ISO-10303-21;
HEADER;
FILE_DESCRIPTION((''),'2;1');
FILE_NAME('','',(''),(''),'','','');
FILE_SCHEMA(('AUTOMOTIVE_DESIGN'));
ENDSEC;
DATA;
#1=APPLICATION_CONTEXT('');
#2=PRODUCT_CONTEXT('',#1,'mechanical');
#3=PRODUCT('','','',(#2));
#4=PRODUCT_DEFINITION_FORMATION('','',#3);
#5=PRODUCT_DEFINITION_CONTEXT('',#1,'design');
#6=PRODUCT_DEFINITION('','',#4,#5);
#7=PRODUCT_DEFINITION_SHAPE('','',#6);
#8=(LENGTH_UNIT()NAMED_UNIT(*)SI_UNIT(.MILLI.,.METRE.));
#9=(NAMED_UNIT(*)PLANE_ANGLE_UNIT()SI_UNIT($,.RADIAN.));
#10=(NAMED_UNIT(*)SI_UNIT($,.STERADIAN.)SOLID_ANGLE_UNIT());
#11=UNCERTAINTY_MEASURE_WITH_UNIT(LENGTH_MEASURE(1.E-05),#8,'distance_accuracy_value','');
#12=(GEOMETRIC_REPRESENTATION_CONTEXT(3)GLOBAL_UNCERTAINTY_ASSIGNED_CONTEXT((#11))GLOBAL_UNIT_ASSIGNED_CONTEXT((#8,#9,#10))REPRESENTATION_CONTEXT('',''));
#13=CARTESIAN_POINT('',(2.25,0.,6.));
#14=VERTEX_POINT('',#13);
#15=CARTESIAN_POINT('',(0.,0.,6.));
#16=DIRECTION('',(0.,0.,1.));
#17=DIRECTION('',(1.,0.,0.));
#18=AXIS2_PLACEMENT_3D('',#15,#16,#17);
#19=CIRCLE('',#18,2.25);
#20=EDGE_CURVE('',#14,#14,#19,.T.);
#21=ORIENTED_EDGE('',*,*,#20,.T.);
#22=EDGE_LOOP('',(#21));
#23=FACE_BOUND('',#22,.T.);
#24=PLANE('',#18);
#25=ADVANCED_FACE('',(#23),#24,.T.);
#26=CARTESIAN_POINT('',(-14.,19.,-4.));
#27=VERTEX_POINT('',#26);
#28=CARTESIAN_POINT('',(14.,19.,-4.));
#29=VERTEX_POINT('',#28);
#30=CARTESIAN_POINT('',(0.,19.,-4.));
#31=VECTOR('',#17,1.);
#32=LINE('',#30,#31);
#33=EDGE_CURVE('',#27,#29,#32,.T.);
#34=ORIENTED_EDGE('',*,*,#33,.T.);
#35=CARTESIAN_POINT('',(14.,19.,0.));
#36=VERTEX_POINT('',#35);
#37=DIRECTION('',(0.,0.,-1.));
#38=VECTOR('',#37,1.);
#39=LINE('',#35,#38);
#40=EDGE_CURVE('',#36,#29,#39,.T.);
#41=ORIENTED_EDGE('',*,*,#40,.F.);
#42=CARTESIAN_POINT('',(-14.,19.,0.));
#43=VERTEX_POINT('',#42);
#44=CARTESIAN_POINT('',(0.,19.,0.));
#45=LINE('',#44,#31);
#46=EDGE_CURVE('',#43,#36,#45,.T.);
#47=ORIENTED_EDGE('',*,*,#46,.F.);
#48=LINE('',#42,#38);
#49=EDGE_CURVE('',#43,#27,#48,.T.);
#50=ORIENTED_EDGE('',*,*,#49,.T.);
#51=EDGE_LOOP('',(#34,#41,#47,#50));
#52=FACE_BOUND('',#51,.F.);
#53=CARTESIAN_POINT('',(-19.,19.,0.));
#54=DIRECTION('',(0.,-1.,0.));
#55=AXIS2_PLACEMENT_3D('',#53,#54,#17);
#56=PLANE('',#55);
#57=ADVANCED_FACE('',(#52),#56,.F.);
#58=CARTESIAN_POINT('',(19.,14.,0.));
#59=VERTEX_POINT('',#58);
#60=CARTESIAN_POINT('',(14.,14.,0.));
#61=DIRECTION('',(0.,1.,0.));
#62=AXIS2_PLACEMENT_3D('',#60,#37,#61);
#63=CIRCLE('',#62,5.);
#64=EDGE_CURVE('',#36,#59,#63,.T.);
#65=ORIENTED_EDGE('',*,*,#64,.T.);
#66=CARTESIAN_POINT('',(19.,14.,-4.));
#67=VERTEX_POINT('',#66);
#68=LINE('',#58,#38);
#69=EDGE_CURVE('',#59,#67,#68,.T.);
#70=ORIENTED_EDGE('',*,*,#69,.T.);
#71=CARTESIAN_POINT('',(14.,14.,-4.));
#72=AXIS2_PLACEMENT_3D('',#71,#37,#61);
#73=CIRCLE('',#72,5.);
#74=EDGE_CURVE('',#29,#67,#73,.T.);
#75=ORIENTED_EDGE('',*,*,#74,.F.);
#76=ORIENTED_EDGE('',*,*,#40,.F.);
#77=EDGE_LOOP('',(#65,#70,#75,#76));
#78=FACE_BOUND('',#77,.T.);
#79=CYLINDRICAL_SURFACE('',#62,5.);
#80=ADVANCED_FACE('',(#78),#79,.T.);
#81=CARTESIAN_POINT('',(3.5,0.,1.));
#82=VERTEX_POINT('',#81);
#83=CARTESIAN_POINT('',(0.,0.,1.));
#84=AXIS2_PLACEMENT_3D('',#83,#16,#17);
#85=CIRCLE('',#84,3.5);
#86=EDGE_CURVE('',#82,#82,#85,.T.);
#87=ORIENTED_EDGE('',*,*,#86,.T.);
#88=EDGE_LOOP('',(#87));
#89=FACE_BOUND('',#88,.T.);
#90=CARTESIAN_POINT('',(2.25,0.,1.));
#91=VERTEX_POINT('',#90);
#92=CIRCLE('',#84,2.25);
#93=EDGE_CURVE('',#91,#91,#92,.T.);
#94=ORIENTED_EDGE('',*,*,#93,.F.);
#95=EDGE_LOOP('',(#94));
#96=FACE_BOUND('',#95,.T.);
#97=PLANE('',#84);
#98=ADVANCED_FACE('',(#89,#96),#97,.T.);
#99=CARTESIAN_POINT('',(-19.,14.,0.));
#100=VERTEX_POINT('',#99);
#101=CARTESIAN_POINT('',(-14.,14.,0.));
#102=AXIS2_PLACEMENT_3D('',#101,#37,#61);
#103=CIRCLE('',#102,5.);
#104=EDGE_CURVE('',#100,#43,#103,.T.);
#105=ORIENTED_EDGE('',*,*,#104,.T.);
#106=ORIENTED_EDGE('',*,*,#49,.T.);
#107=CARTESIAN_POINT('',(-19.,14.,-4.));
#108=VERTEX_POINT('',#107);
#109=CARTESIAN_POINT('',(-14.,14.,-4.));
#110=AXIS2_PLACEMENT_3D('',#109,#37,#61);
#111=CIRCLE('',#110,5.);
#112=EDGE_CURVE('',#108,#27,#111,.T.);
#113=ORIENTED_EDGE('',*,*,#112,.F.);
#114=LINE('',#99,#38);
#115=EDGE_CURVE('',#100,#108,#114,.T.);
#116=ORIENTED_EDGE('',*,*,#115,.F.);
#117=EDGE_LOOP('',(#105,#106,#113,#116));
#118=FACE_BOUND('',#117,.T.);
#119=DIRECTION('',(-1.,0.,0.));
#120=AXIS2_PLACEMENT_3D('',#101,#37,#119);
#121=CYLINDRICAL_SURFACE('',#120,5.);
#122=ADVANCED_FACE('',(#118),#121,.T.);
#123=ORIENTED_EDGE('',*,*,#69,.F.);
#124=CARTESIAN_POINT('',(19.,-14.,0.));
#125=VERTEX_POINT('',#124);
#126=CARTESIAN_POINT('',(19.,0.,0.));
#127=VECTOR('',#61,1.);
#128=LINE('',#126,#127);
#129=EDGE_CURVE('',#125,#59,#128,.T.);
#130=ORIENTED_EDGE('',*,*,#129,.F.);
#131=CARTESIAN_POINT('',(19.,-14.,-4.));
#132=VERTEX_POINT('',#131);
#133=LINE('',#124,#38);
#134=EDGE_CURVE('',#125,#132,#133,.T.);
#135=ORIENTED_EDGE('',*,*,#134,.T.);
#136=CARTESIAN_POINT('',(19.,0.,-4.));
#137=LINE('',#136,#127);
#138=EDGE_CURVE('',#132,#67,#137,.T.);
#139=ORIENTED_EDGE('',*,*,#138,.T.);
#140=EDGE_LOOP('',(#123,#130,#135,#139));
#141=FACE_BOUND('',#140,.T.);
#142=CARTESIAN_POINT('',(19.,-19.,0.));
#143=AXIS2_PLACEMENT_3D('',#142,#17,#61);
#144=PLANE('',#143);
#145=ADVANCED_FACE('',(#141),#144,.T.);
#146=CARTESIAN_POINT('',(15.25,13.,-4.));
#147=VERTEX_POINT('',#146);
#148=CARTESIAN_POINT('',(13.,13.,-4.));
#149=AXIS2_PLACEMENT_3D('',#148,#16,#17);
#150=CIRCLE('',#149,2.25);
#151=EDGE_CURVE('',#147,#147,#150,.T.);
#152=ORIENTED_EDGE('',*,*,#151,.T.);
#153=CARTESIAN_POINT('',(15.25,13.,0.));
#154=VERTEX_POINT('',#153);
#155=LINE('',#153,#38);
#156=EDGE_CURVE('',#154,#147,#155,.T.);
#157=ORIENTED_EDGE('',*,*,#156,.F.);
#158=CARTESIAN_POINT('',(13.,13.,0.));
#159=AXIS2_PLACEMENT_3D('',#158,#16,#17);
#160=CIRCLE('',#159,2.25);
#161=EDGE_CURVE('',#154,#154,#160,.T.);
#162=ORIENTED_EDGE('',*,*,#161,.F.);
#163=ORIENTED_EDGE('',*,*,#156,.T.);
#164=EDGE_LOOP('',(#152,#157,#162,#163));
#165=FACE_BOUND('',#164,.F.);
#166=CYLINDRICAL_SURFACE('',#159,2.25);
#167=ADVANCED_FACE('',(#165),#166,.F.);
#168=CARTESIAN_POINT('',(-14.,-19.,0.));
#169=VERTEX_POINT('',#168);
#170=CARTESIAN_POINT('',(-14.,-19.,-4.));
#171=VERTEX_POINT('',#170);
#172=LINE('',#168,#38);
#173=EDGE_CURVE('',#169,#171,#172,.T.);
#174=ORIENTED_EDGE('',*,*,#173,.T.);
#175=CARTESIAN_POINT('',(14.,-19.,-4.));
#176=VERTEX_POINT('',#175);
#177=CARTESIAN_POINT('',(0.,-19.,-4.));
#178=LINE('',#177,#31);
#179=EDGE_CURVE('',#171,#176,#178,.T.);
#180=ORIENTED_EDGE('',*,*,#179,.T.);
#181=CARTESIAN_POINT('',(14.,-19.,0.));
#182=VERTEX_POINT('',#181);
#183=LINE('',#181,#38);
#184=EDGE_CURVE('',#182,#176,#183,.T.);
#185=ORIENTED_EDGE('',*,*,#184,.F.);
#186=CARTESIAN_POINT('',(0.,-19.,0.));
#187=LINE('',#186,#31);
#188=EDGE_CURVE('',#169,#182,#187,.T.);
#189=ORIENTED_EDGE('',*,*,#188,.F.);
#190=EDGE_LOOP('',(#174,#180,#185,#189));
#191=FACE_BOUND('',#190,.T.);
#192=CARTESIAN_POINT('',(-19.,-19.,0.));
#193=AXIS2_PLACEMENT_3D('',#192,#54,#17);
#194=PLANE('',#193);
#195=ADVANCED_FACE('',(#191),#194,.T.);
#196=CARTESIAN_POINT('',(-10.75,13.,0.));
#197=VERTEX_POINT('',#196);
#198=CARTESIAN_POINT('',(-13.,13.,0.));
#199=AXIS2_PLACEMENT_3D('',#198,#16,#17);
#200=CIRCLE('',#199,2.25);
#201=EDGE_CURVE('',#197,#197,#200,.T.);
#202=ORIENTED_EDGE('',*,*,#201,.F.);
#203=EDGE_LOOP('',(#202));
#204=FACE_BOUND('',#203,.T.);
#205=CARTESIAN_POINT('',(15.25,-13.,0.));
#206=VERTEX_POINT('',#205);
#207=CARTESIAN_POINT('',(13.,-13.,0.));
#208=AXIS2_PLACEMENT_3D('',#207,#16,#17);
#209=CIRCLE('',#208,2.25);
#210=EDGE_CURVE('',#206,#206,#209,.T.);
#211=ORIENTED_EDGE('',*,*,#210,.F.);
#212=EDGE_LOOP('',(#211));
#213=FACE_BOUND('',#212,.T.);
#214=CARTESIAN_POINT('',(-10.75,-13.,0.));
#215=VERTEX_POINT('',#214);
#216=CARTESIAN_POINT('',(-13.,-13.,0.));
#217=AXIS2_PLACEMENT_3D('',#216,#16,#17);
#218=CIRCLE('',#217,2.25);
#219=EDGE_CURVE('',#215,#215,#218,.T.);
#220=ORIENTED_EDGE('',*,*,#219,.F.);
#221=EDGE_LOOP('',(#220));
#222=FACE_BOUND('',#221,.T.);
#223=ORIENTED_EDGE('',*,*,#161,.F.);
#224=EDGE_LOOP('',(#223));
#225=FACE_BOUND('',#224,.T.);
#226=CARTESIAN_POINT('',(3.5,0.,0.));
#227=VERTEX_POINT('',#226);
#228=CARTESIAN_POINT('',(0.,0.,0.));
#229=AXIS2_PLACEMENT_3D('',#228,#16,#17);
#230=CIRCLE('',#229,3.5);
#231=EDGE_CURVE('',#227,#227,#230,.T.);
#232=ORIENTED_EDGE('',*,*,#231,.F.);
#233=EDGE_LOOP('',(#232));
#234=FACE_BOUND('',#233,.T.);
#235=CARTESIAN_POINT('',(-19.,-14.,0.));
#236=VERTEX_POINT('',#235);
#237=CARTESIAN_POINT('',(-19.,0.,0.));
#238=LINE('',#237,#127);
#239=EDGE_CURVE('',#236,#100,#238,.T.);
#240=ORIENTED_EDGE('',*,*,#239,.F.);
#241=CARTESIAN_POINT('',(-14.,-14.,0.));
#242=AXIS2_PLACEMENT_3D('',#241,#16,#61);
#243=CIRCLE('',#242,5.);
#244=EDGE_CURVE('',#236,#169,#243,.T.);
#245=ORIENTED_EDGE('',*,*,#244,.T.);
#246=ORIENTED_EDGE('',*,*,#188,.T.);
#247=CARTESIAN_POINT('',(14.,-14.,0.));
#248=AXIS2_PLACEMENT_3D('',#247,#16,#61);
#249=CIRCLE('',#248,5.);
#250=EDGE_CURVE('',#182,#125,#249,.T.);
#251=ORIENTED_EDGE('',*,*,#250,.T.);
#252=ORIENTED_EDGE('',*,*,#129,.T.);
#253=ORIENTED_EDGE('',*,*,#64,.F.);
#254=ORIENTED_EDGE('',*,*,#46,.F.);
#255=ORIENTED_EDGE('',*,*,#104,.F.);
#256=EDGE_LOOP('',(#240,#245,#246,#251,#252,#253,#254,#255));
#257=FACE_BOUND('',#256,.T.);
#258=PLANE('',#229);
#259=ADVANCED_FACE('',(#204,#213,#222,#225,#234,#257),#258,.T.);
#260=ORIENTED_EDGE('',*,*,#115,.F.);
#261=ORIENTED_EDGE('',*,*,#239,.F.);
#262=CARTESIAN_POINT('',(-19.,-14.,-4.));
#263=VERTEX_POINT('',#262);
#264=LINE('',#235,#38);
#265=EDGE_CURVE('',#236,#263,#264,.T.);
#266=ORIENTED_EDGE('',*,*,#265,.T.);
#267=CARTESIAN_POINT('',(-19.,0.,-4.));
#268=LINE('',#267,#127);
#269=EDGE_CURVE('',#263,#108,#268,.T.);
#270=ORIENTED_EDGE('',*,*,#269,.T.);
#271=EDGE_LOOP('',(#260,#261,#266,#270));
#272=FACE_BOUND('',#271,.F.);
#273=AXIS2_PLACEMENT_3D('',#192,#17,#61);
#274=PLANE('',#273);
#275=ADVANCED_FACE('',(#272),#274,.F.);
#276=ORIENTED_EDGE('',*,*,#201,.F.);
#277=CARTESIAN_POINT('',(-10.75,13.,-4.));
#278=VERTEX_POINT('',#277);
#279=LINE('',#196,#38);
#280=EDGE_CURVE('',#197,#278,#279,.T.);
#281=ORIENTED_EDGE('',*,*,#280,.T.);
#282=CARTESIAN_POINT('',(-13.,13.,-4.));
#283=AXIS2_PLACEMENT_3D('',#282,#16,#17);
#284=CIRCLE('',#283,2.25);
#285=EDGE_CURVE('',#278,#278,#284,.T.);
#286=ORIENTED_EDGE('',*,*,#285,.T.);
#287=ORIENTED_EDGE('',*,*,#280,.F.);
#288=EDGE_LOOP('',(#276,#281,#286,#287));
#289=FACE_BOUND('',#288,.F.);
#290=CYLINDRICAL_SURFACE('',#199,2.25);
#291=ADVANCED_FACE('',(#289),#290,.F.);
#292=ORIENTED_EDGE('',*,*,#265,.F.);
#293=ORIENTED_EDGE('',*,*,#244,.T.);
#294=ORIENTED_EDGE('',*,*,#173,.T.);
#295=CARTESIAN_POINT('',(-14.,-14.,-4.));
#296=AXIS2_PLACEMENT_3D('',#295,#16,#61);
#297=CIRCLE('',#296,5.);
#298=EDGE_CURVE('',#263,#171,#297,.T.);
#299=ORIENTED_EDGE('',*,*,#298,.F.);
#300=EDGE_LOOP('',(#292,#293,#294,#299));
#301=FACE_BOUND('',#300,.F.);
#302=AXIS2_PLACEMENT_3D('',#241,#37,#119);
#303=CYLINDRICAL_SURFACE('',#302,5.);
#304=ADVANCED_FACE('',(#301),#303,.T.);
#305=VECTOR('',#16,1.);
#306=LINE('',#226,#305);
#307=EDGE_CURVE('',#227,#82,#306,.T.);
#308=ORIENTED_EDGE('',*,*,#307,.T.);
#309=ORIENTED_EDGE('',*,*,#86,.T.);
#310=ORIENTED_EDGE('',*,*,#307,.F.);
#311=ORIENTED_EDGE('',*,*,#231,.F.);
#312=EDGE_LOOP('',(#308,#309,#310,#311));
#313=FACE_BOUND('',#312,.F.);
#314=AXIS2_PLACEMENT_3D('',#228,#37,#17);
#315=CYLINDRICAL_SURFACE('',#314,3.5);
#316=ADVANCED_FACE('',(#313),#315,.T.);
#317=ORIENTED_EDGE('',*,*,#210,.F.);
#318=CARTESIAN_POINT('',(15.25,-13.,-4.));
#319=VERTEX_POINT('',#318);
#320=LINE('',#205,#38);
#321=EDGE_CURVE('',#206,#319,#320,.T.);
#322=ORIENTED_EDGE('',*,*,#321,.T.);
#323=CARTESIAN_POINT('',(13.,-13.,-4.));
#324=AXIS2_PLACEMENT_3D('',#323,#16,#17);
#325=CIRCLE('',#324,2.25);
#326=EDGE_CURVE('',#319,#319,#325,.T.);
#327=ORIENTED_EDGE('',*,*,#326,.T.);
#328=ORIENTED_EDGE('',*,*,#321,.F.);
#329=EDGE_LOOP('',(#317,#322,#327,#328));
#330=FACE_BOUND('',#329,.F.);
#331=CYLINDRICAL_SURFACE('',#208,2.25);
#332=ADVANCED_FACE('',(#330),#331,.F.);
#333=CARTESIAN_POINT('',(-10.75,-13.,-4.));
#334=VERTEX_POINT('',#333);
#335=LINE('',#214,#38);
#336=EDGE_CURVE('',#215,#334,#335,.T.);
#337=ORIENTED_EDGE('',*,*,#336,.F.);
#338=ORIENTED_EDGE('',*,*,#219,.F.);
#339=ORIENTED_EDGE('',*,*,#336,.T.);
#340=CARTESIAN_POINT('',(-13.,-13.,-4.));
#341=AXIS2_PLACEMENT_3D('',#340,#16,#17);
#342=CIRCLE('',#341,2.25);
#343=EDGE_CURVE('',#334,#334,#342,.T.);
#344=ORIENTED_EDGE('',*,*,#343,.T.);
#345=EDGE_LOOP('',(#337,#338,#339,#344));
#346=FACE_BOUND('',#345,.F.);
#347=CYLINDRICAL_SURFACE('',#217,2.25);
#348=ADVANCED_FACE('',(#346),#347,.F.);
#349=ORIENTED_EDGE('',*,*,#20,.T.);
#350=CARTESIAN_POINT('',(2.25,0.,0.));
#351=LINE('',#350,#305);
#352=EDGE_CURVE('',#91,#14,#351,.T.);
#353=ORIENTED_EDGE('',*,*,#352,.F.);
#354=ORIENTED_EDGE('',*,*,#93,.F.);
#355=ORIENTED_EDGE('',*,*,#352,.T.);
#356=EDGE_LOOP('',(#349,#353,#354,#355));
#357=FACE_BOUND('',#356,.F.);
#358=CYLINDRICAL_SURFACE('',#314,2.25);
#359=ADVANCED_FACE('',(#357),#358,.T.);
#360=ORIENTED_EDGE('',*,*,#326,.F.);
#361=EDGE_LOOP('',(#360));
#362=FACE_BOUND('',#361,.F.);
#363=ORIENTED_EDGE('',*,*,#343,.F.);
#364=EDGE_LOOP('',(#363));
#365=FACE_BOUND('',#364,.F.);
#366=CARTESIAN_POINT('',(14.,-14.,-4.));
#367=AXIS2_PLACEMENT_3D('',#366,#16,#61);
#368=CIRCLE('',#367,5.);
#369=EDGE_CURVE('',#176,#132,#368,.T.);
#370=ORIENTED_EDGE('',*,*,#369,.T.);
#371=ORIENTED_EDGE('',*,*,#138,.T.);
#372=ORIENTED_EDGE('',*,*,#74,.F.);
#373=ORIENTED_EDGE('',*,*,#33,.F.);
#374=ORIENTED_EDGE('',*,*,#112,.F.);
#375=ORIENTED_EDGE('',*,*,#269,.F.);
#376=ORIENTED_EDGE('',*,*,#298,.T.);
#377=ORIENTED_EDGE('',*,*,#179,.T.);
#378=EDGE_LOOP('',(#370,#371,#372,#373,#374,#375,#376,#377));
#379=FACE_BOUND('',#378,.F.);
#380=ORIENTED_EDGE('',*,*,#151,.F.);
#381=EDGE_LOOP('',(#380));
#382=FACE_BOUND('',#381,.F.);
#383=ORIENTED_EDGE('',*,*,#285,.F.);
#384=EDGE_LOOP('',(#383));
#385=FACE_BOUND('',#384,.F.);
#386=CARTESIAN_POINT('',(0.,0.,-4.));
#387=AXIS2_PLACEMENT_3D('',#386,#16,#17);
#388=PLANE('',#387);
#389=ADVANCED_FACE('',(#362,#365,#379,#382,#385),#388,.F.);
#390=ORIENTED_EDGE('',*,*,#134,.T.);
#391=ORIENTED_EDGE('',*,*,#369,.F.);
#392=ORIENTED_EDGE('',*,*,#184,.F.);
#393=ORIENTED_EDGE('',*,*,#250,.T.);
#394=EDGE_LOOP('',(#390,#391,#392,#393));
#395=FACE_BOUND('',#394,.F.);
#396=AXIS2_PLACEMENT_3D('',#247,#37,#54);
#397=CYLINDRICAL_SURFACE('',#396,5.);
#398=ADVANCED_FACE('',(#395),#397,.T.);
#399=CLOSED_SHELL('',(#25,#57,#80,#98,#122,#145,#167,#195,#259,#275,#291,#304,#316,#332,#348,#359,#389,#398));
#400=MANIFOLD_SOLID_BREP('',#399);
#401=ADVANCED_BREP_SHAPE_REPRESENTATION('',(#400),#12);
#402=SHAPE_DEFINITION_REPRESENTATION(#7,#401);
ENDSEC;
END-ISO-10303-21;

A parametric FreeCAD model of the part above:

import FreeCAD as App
import Part
import Sketcher
from FreeCAD import Vector
Q = App.Units.Quantity


def edges_at(feature, points):
    """Names of the edges that pass closest to the given points."""
    edges = feature.Shape.Edges
    near = lambda p: min(range(len(edges)), key=lambda i: edges[i].distToShape(Part.Vertex(*p))[0])
    return sorted({f"Edge{near(p) + 1}" for p in points})


def add_polygon(sketch, points):
    """Adds a closed chain of lines whose ends are joined by coincident constraints."""
    first, n = sketch.GeometryCount, len(points)
    for a, b in zip(points, points[1:] + points[:1]):
        sketch.addGeometry(Part.LineSegment(App.Vector(*a, 0), App.Vector(*b, 0)), False)
    for i in range(n):
        sketch.addConstraint(Sketcher.Constraint("Coincident", first + i, 2, first + (i + 1) % n, 1))

doc = App.newDocument("Part")
body = doc.addObject("PartDesign::Body", "Body")

# Sketch on XY plane
sketch1 = body.newObject("Sketcher::SketchObject", "Sketch")
sketch1.AttachmentSupport = (doc.getObject("XY_Plane"), [""])
sketch1.MapMode = "FlatFace"
add_polygon(sketch1, [(-19, 19), (-19, -19), (19, -19), (19, 19)])  # lines 0-3
sketch1.addGeometry(Part.Circle(Vector(-13, -13, 0), Vector(0, 0, 1), 2.25), False)  # 4
sketch1.addGeometry(Part.Circle(Vector(13, -13, 0), Vector(0, 0, 1), 2.25), False)  # 5
sketch1.addGeometry(Part.Circle(Vector(-13, 13, 0), Vector(0, 0, 1), 2.25), False)  # 6
sketch1.addGeometry(Part.Circle(Vector(13, 13, 0), Vector(0, 0, 1), 2.25), False)  # 7
sketch1.addConstraint(Sketcher.Constraint("Vertical", 0))
sketch1.addConstraint(Sketcher.Constraint("Horizontal", 1))
sketch1.addConstraint(Sketcher.Constraint("Vertical", 2))
sketch1.addConstraint(Sketcher.Constraint("Horizontal", 3))
sketch1.addConstraint(Sketcher.Constraint("Equal", 4, 5))
sketch1.addConstraint(Sketcher.Constraint("Equal", 5, 6))
sketch1.addConstraint(Sketcher.Constraint("Equal", 6, 7))
sketch1.addConstraint(Sketcher.Constraint("Symmetric", 5, 3, 6, 3, -1, 1))
sketch1.addConstraint(Sketcher.Constraint("Symmetric", 4, 3, 7, 3, -1, 1))
sketch1.addConstraint(Sketcher.Constraint("Symmetric", 0, 2, 2, 2, -1, 1))
sketch1.addConstraint(Sketcher.Constraint("Symmetric", 4, 3, 5, 3, -2))
sketch1.addConstraint(Sketcher.Constraint("Equal", 3, 0))
sketch1.addConstraint(Sketcher.Constraint("Diameter", 4, Q("4.5 mm")))
sketch1.addConstraint(Sketcher.Constraint("DistanceX", 1, 1, 1, 2, Q("38 mm")))
sketch1.addConstraint(Sketcher.Constraint("DistanceX", 4, 3, -1, 1, Q("13 mm")))
sketch1.addConstraint(Sketcher.Constraint("DistanceY", 4, 3, -1, 1, Q("13 mm")))
pad1 = body.newObject("PartDesign::Pad", "Pad")
pad1.Profile = sketch1
pad1.Length = 4
pad1.Reversed = True

# Sketch on XY plane
sketch2 = body.newObject("Sketcher::SketchObject", "Sketch001")
sketch2.AttachmentSupport = (doc.getObject("XY_Plane"), [""])
sketch2.MapMode = "FlatFace"
sketch2.addGeometry(Part.Circle(Vector(0, 0, 0), Vector(0, 0, 1), 3.5), False)
sketch2.addGeometry(Part.Circle(Vector(0, 0, 0), Vector(0, 0, 1), 2.25), False)
sketch2.addConstraint(Sketcher.Constraint("Coincident", 0, 3, -1, 1))
sketch2.addConstraint(Sketcher.Constraint("Coincident", 1, 3, -1, 1))
sketch2.addConstraint(Sketcher.Constraint("Diameter", 0, Q("7 mm")))
sketch2.addConstraint(Sketcher.Constraint("Diameter", 1, Q("4.5 mm")))
pad2 = body.newObject("PartDesign::Pad", "Pad001")
pad2.Profile = sketch2
pad2.Length = 1

# Sketch on XY plane
sketch3 = body.newObject("Sketcher::SketchObject", "Sketch002")
sketch3.AttachmentSupport = (doc.getObject("XY_Plane"), [""])
sketch3.MapMode = "FlatFace"
sketch3.addGeometry(Part.Circle(Vector(0, 0, 0), Vector(0, 0, 1), 2.25), False)
sketch3.addConstraint(Sketcher.Constraint("Coincident", 0, 3, -1, 1))
sketch3.addConstraint(Sketcher.Constraint("Diameter", 0, Q("4.5 mm")))
pad3 = body.newObject("PartDesign::Pad", "Pad002")
pad3.Profile = sketch3
pad3.Length = 6
doc.recompute()

fillet = body.newObject("PartDesign::Fillet", "Fillet")
fillet.Base = (pad3, edges_at(pad3, [
    (-19, -19, -2),
    (19, -19, -2),
    (19, 19, -2),
    (-19, 19, -2),
]))
fillet.Radius = 5

doc.recompute()
